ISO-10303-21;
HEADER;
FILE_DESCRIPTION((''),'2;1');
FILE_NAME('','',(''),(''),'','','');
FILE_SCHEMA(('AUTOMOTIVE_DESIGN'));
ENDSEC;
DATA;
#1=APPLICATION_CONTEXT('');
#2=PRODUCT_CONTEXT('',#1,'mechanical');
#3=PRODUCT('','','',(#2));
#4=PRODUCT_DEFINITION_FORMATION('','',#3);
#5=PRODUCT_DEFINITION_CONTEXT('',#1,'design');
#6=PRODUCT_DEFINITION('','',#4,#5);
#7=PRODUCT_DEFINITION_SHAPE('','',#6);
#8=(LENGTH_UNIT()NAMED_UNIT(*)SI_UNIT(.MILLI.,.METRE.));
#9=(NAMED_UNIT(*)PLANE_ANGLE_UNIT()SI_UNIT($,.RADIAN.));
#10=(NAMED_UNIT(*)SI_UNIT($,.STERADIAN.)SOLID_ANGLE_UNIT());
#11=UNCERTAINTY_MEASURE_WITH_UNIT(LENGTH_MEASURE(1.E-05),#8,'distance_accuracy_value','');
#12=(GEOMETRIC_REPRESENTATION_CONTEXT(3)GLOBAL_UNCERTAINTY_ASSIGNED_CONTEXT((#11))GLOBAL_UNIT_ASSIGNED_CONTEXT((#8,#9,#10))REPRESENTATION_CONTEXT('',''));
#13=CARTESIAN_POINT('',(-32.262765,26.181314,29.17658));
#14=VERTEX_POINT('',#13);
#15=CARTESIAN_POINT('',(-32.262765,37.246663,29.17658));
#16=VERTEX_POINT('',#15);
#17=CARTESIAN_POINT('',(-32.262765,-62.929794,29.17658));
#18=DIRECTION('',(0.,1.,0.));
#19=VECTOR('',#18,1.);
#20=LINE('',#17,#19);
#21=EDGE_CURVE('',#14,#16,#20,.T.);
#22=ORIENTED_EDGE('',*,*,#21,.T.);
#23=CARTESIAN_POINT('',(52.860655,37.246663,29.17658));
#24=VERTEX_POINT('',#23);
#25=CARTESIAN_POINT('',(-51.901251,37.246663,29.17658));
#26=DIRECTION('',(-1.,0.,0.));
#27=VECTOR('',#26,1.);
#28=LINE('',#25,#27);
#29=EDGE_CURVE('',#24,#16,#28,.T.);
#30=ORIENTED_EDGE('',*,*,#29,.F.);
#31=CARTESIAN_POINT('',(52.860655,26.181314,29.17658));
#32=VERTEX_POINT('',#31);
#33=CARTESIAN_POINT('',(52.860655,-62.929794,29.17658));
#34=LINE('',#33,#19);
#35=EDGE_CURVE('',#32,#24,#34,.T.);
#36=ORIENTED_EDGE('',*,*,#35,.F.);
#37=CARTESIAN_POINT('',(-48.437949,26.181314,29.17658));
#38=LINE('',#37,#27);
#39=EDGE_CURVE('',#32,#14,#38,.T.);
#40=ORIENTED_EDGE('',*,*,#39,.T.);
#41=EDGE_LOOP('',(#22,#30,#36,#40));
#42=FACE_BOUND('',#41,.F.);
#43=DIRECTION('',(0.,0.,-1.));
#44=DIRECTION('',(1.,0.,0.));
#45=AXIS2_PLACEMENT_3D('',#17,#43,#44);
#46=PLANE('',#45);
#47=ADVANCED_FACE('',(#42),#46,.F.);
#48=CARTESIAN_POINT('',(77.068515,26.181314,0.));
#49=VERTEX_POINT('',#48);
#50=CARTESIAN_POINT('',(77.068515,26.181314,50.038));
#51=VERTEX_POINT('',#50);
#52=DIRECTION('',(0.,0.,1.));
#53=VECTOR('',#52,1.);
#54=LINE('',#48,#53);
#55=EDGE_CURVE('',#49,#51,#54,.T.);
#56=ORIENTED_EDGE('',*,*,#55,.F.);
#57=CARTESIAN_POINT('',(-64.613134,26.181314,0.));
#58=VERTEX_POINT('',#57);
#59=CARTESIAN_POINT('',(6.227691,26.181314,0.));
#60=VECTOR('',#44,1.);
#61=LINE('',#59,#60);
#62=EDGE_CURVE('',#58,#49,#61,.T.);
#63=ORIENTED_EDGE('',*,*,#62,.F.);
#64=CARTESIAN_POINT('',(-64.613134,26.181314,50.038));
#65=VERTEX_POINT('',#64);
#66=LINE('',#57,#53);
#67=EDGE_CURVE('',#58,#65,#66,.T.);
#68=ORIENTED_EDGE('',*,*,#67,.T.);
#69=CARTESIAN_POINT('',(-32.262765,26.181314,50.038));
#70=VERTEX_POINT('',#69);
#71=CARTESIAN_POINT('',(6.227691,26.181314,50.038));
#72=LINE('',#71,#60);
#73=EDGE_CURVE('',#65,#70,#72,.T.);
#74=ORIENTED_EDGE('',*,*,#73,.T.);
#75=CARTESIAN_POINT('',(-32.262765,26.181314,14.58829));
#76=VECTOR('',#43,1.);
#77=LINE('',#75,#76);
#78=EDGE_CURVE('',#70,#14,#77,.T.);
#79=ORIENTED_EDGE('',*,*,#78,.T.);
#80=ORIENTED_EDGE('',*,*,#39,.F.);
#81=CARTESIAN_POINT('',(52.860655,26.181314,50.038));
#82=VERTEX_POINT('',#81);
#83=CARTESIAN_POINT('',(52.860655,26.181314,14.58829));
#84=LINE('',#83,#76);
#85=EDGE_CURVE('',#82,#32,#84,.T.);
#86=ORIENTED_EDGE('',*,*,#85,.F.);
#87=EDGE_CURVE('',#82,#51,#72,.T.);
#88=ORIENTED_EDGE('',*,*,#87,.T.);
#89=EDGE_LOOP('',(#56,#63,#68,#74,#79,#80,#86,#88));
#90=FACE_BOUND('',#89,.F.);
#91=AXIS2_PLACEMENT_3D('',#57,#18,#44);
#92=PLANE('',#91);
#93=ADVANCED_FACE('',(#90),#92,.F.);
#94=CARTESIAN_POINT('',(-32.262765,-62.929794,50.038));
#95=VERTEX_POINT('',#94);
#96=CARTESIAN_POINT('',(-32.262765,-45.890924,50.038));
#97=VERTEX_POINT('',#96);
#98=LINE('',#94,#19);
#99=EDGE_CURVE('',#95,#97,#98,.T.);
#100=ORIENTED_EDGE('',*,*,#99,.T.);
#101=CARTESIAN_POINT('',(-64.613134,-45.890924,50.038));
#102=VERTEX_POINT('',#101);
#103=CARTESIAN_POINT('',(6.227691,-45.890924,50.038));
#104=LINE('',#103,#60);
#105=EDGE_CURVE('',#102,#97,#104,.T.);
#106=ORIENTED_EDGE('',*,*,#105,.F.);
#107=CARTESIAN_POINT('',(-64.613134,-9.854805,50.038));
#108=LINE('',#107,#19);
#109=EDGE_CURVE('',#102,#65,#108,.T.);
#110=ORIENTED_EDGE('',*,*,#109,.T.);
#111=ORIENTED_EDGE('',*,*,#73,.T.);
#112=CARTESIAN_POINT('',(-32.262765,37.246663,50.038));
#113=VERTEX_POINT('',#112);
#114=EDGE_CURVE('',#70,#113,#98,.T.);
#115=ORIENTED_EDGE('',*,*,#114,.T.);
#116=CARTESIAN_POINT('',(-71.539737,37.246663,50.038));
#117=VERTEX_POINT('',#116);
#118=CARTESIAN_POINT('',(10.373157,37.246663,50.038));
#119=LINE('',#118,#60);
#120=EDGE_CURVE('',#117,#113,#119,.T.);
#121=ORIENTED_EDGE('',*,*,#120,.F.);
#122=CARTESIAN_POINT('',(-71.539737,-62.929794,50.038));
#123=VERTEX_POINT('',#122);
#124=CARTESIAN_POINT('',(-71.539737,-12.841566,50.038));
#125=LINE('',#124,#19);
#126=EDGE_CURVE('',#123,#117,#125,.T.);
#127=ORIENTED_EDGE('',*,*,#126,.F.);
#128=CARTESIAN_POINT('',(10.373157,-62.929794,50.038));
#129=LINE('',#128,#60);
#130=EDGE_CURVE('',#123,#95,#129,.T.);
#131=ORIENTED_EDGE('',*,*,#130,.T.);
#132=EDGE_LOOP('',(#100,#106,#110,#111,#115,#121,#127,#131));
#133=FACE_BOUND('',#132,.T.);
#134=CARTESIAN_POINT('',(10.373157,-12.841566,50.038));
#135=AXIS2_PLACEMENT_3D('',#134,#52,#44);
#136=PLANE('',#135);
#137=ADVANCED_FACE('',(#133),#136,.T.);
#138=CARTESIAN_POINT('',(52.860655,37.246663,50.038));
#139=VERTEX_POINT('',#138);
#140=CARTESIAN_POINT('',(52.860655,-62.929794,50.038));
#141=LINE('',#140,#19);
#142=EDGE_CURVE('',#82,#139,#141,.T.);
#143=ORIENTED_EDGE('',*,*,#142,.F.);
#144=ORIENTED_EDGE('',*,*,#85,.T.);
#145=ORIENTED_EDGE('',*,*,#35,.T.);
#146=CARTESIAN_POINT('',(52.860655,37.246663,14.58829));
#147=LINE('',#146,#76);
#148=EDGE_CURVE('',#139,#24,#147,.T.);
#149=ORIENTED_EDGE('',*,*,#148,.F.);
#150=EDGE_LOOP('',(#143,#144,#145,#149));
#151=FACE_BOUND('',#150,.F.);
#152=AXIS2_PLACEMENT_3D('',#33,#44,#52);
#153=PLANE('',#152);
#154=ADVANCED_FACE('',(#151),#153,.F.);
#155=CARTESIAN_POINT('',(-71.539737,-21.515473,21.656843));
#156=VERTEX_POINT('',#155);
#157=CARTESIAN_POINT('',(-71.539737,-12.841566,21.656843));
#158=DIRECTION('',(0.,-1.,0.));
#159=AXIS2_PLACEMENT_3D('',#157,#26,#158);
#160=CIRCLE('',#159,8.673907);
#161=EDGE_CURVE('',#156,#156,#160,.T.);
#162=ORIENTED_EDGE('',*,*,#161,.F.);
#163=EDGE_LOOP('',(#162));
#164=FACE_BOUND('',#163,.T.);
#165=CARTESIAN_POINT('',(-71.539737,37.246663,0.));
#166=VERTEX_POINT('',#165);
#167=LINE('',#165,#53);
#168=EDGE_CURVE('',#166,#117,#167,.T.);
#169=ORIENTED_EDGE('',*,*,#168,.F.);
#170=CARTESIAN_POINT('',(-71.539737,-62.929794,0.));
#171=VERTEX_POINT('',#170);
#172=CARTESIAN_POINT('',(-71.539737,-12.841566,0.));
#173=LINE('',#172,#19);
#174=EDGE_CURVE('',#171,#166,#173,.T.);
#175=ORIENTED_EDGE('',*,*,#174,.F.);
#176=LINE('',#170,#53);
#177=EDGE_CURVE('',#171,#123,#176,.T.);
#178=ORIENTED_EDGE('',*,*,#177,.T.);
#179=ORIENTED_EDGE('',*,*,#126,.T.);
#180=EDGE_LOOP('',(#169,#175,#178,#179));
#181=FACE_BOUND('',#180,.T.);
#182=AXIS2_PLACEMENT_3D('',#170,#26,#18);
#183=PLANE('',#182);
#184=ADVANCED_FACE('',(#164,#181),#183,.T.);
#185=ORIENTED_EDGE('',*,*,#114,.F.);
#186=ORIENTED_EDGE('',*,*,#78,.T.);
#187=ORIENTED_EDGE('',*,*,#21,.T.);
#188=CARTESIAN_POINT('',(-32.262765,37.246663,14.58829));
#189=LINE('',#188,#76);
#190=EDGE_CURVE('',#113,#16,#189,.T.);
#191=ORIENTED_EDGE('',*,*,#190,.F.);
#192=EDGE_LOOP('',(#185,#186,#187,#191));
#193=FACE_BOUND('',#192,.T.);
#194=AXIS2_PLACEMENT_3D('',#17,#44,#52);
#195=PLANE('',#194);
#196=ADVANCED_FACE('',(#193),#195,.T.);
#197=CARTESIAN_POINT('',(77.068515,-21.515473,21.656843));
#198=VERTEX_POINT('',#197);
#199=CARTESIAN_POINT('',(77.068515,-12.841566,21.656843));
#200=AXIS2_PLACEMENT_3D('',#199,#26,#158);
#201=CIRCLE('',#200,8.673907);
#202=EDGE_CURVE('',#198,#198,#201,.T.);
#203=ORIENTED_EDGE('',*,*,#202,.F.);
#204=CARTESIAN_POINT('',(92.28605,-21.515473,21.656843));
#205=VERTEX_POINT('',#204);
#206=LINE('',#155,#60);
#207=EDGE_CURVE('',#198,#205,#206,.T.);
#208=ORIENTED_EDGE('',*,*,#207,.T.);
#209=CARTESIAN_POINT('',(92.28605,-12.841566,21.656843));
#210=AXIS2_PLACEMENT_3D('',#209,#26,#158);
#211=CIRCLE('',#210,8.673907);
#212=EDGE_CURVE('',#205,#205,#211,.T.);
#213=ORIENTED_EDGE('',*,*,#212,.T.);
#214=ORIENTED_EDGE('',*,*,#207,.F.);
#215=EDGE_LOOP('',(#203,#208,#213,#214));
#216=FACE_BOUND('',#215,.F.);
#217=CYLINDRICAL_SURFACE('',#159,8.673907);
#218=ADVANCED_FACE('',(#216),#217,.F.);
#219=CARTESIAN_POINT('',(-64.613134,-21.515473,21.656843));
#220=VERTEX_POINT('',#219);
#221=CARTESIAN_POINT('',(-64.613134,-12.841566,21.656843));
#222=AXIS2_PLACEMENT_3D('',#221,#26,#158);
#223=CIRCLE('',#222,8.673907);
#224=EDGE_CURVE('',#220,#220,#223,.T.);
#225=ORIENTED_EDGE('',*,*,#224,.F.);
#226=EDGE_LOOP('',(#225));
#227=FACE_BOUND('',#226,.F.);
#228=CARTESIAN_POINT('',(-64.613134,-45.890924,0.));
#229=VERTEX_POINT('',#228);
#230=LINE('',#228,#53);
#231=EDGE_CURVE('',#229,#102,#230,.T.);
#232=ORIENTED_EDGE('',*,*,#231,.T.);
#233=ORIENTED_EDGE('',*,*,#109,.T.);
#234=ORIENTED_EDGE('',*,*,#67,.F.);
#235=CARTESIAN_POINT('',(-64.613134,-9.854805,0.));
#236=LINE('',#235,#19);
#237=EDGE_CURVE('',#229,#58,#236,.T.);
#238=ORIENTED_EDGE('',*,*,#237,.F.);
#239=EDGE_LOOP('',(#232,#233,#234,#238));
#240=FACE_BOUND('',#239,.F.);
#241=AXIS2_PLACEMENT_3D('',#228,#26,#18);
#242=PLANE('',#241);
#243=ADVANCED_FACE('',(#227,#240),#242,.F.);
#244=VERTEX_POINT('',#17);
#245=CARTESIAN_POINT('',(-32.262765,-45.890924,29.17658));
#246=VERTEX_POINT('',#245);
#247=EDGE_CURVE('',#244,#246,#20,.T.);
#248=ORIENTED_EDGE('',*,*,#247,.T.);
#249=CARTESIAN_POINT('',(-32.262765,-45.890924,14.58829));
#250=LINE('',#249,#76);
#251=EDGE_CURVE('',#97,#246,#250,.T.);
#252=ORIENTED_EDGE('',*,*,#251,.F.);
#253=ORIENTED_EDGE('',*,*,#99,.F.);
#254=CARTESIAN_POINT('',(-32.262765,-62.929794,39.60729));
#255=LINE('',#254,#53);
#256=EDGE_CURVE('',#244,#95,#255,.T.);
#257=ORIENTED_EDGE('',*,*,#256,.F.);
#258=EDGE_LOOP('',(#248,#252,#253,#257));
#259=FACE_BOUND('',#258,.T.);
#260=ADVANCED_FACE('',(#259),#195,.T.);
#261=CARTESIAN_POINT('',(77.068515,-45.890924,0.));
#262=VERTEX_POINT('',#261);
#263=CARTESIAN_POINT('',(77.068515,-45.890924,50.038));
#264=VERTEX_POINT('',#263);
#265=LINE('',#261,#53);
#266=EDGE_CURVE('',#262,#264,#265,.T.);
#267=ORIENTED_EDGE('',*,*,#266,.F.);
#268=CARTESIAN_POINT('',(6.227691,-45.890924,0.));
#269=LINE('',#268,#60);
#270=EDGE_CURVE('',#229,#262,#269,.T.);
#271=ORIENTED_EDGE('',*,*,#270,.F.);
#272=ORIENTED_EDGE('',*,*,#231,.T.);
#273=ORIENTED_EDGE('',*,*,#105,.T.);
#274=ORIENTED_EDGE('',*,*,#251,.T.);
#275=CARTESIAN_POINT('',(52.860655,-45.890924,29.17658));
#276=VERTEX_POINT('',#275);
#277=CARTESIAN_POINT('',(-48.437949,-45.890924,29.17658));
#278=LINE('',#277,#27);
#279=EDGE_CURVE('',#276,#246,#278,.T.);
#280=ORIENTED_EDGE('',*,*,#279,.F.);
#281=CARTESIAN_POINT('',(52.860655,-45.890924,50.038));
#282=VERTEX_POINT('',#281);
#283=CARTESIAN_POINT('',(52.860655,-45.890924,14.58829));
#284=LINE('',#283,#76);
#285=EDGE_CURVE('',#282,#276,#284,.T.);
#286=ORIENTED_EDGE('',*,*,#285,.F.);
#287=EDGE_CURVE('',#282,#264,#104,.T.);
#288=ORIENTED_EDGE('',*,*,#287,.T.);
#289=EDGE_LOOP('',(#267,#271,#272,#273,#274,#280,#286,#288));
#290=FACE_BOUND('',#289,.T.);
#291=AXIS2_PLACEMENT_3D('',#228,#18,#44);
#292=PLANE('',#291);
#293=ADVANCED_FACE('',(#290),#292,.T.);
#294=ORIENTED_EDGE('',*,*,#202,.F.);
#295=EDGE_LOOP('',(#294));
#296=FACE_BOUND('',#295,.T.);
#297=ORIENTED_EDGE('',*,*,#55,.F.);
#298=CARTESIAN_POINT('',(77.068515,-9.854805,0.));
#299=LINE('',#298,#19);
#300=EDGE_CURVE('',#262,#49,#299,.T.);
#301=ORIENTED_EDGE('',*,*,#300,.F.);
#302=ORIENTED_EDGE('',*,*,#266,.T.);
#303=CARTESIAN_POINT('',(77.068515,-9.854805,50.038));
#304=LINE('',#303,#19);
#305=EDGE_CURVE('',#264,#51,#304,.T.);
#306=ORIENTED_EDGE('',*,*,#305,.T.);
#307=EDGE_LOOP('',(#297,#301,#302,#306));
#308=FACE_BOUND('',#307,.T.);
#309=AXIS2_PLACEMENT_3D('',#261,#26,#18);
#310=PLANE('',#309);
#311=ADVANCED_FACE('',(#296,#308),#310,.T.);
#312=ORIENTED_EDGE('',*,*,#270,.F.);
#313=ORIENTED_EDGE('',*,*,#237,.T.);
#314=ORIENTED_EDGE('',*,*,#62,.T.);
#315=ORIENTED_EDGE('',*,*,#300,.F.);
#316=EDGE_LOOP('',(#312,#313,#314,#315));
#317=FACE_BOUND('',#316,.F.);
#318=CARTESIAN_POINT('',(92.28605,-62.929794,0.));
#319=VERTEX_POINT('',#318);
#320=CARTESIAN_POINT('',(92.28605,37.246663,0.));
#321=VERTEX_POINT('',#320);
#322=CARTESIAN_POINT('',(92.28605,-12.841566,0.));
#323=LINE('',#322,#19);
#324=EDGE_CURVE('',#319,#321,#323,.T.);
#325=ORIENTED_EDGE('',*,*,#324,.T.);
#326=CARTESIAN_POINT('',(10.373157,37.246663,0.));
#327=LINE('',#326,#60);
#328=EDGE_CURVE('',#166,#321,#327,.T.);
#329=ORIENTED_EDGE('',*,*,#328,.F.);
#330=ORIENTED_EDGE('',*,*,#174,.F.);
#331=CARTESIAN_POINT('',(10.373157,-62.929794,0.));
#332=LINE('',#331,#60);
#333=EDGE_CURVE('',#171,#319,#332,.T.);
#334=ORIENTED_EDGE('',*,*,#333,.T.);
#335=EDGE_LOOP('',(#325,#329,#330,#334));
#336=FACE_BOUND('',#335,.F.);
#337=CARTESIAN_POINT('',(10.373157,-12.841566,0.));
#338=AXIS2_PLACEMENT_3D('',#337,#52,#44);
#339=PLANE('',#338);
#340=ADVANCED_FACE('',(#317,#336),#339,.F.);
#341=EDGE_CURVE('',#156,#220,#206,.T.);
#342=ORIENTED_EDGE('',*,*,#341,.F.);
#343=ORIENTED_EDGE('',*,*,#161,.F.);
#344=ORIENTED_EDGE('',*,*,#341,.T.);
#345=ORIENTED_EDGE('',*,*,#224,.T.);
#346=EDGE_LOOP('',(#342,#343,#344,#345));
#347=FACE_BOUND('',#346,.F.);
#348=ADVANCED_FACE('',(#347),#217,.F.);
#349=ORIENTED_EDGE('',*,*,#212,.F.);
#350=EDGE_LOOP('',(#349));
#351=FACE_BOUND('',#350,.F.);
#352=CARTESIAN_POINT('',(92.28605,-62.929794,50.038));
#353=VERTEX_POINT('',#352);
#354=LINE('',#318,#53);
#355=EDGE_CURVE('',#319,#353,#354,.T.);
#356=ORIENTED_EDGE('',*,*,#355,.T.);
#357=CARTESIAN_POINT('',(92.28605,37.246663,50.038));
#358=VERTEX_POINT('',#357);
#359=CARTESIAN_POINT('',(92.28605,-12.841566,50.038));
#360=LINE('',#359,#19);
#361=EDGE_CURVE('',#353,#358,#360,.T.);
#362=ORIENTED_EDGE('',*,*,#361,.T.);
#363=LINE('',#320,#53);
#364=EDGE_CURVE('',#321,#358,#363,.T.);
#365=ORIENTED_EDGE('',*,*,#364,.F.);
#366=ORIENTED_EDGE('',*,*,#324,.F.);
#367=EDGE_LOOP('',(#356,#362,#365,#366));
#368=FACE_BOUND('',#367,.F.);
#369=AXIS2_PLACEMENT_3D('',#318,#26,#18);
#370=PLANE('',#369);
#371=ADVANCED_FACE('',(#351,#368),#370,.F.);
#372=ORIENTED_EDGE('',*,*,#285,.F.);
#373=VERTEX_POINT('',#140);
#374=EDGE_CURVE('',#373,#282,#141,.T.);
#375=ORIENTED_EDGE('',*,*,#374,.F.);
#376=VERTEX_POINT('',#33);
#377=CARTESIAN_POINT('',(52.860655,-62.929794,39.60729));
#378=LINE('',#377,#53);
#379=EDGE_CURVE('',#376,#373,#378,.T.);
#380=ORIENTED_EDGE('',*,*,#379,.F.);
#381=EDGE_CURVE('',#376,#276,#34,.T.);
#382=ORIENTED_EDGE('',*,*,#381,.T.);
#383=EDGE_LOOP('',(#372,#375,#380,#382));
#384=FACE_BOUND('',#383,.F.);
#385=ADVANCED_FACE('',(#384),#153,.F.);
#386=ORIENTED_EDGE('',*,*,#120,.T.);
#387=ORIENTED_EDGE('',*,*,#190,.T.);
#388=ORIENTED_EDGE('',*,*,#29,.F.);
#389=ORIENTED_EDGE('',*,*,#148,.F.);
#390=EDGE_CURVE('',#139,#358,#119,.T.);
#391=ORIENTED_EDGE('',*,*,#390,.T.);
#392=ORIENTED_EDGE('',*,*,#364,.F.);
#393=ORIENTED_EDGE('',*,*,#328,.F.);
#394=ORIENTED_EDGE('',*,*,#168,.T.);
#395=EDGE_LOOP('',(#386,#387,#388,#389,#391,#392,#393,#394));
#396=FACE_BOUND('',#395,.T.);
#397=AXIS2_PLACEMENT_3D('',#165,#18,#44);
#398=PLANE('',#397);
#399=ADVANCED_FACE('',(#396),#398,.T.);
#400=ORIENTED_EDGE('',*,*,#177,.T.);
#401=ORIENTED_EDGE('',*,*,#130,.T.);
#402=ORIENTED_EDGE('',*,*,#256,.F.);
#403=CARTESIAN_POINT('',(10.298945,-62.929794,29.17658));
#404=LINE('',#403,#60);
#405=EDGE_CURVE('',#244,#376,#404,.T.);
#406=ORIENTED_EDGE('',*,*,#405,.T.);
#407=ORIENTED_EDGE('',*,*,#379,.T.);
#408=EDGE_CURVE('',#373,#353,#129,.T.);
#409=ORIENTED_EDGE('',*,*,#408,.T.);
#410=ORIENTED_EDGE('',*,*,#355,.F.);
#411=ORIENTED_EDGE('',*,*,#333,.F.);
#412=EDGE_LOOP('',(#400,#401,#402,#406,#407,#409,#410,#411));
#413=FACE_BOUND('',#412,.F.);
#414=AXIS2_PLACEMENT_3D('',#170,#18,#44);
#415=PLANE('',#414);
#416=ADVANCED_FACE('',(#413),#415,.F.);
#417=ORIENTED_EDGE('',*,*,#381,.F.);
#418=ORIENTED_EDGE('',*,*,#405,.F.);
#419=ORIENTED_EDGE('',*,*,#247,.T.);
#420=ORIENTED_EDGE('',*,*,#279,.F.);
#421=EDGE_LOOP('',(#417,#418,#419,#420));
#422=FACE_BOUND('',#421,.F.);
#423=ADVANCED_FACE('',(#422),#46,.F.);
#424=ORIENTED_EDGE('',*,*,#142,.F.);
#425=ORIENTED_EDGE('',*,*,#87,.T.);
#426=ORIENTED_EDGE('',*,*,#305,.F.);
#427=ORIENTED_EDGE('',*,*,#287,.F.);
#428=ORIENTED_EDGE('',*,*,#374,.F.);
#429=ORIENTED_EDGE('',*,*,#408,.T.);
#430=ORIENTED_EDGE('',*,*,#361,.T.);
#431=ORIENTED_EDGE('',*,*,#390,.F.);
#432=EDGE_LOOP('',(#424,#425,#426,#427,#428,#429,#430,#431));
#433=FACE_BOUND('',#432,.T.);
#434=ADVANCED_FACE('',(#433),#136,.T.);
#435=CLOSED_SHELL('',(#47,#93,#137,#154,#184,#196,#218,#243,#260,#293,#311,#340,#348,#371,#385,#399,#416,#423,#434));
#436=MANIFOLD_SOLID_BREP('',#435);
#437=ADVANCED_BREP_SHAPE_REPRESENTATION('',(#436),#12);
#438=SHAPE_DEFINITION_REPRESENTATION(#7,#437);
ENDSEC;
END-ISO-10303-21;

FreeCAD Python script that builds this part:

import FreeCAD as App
import Part
import Sketcher
from FreeCAD import Vector
Q = App.Units.Quantity


def add_polygon(sketch, points):
    """Adds a closed chain of lines whose ends are joined by coincident constraints."""
    first, n = sketch.GeometryCount, len(points)
    for a, b in zip(points, points[1:] + points[:1]):
        sketch.addGeometry(Part.LineSegment(App.Vector(*a, 0), App.Vector(*b, 0)), False)
    for i in range(n):
        sketch.addConstraint(Sketcher.Constraint("Coincident", first + i, 2, first + (i + 1) % n, 1))

doc = App.newDocument("Part")
body = doc.addObject("PartDesign::Body", "Body")

# Sketch on XY plane
sketch1 = body.newObject("Sketcher::SketchObject", "Sketch")
sketch1.AttachmentSupport = (doc.getObject("XY_Plane"), [""])
sketch1.MapMode = "FlatFace"
add_polygon(sketch1, [(-71.539737, 37.246663), (-71.539737, -62.929794), (92.28605, -62.929794), (92.28605, 37.246663)])  # lines 0-3
add_polygon(sketch1, [(77.068515, -45.890924), (-64.613134, -45.890924), (-64.613134, 26.181314), (77.068515, 26.181314)])  # lines 4-7
sketch1.addConstraint([
    Sketcher.Constraint("Vertical", 0),
    Sketcher.Constraint("Horizontal", 1),
    Sketcher.Constraint("Vertical", 2),
    Sketcher.Constraint("Horizontal", 3),
    Sketcher.Constraint("Horizontal", 4),
    Sketcher.Constraint("Vertical", 5),
    Sketcher.Constraint("Horizontal", 6),
    Sketcher.Constraint("Vertical", 7),
    Sketcher.Constraint("DistanceX", 4, 2, 4, 1, 141.681649),
    Sketcher.Constraint("DistanceX", 1, 1, 1, 2, 163.825788),
    Sketcher.Constraint("DistanceY", 0, 2, 0, 1, 100.176457),
    Sketcher.Constraint("DistanceY", 5, 1, 5, 2, 72.072238),
    Sketcher.Constraint("DistanceX", -1, 1, 1, 2, 92.28605),
    Sketcher.Constraint("DistanceY", 0, 2, 4, 2, 17.038871),
    Sketcher.Constraint("DistanceY", 0, 2, -1, 1, 62.929794),
    Sketcher.Constraint("DistanceX", 4, 2, -1, 1, 64.613134),
])
pad1 = body.newObject("PartDesign::Pad", "Pad")
pad1.Profile = sketch1
pad1.Length = Q("1.97 in")

# Sketch on XZ plane
sketch2 = body.newObject("Sketcher::SketchObject", "Sketch001")
sketch2.AttachmentSupport = (doc.getObject("XZ_Plane"), [""])
sketch2.MapMode = "FlatFace"
sketch2.AttachmentOffset = App.Placement(Vector(0, 0, 62.929794), App.Rotation())
add_polygon(sketch2, [(-32.262765, 50.038), (-32.262765, 29.17658), (52.860655, 29.17658), (52.860655, 50.038)])  # lines 0-3
sketch2.addConstraint([
    Sketcher.Constraint("Vertical", 0),
    Sketcher.Constraint("Horizontal", 1),
    Sketcher.Constraint("Vertical", 2),
    Sketcher.Constraint("Horizontal", 3),
    Sketcher.Constraint("DistanceY", -1, 1, 2, 2, Q("1.97 in")),
    Sketcher.Constraint("DistanceX", 1, 1, 1, 2, 85.12342),
    Sketcher.Constraint("DistanceY", 0, 2, 0, 1, 20.86142),
    Sketcher.Constraint("DistanceX", 0, 2, -1, 1, 32.262765),
])
pocket1 = body.newObject("PartDesign::Pocket", "Pocket")
pocket1.Profile = sketch2
pocket1.Length = Q("5.23 in")

# Sketch on YZ plane
sketch3 = body.newObject("Sketcher::SketchObject", "Sketch002")
sketch3.AttachmentSupport = (doc.getObject("YZ_Plane"), [""])
sketch3.MapMode = "FlatFace"
sketch3.AttachmentOffset = App.Placement(Vector(0, 0, -71.539737), App.Rotation())
sketch3.addGeometry(Part.Circle(Vector(-12.841566, 21.656843, 0), Vector(0, 0, 1), 8.673907), False)
sketch3.addConstraint([
    Sketcher.Constraint("Diameter", 0, 17.347814),
    Sketcher.Constraint("DistanceX", 0, 3, -1, 1, 12.841566),
    Sketcher.Constraint("DistanceY", -1, 1, 0, 3, 21.656843),
])
pocket2 = body.newObject("PartDesign::Pocket", "Pocket001")
pocket2.Profile = sketch3
pocket2.Length = Q("7.54 in")
pocket2.Reversed = True

doc.recompute()
